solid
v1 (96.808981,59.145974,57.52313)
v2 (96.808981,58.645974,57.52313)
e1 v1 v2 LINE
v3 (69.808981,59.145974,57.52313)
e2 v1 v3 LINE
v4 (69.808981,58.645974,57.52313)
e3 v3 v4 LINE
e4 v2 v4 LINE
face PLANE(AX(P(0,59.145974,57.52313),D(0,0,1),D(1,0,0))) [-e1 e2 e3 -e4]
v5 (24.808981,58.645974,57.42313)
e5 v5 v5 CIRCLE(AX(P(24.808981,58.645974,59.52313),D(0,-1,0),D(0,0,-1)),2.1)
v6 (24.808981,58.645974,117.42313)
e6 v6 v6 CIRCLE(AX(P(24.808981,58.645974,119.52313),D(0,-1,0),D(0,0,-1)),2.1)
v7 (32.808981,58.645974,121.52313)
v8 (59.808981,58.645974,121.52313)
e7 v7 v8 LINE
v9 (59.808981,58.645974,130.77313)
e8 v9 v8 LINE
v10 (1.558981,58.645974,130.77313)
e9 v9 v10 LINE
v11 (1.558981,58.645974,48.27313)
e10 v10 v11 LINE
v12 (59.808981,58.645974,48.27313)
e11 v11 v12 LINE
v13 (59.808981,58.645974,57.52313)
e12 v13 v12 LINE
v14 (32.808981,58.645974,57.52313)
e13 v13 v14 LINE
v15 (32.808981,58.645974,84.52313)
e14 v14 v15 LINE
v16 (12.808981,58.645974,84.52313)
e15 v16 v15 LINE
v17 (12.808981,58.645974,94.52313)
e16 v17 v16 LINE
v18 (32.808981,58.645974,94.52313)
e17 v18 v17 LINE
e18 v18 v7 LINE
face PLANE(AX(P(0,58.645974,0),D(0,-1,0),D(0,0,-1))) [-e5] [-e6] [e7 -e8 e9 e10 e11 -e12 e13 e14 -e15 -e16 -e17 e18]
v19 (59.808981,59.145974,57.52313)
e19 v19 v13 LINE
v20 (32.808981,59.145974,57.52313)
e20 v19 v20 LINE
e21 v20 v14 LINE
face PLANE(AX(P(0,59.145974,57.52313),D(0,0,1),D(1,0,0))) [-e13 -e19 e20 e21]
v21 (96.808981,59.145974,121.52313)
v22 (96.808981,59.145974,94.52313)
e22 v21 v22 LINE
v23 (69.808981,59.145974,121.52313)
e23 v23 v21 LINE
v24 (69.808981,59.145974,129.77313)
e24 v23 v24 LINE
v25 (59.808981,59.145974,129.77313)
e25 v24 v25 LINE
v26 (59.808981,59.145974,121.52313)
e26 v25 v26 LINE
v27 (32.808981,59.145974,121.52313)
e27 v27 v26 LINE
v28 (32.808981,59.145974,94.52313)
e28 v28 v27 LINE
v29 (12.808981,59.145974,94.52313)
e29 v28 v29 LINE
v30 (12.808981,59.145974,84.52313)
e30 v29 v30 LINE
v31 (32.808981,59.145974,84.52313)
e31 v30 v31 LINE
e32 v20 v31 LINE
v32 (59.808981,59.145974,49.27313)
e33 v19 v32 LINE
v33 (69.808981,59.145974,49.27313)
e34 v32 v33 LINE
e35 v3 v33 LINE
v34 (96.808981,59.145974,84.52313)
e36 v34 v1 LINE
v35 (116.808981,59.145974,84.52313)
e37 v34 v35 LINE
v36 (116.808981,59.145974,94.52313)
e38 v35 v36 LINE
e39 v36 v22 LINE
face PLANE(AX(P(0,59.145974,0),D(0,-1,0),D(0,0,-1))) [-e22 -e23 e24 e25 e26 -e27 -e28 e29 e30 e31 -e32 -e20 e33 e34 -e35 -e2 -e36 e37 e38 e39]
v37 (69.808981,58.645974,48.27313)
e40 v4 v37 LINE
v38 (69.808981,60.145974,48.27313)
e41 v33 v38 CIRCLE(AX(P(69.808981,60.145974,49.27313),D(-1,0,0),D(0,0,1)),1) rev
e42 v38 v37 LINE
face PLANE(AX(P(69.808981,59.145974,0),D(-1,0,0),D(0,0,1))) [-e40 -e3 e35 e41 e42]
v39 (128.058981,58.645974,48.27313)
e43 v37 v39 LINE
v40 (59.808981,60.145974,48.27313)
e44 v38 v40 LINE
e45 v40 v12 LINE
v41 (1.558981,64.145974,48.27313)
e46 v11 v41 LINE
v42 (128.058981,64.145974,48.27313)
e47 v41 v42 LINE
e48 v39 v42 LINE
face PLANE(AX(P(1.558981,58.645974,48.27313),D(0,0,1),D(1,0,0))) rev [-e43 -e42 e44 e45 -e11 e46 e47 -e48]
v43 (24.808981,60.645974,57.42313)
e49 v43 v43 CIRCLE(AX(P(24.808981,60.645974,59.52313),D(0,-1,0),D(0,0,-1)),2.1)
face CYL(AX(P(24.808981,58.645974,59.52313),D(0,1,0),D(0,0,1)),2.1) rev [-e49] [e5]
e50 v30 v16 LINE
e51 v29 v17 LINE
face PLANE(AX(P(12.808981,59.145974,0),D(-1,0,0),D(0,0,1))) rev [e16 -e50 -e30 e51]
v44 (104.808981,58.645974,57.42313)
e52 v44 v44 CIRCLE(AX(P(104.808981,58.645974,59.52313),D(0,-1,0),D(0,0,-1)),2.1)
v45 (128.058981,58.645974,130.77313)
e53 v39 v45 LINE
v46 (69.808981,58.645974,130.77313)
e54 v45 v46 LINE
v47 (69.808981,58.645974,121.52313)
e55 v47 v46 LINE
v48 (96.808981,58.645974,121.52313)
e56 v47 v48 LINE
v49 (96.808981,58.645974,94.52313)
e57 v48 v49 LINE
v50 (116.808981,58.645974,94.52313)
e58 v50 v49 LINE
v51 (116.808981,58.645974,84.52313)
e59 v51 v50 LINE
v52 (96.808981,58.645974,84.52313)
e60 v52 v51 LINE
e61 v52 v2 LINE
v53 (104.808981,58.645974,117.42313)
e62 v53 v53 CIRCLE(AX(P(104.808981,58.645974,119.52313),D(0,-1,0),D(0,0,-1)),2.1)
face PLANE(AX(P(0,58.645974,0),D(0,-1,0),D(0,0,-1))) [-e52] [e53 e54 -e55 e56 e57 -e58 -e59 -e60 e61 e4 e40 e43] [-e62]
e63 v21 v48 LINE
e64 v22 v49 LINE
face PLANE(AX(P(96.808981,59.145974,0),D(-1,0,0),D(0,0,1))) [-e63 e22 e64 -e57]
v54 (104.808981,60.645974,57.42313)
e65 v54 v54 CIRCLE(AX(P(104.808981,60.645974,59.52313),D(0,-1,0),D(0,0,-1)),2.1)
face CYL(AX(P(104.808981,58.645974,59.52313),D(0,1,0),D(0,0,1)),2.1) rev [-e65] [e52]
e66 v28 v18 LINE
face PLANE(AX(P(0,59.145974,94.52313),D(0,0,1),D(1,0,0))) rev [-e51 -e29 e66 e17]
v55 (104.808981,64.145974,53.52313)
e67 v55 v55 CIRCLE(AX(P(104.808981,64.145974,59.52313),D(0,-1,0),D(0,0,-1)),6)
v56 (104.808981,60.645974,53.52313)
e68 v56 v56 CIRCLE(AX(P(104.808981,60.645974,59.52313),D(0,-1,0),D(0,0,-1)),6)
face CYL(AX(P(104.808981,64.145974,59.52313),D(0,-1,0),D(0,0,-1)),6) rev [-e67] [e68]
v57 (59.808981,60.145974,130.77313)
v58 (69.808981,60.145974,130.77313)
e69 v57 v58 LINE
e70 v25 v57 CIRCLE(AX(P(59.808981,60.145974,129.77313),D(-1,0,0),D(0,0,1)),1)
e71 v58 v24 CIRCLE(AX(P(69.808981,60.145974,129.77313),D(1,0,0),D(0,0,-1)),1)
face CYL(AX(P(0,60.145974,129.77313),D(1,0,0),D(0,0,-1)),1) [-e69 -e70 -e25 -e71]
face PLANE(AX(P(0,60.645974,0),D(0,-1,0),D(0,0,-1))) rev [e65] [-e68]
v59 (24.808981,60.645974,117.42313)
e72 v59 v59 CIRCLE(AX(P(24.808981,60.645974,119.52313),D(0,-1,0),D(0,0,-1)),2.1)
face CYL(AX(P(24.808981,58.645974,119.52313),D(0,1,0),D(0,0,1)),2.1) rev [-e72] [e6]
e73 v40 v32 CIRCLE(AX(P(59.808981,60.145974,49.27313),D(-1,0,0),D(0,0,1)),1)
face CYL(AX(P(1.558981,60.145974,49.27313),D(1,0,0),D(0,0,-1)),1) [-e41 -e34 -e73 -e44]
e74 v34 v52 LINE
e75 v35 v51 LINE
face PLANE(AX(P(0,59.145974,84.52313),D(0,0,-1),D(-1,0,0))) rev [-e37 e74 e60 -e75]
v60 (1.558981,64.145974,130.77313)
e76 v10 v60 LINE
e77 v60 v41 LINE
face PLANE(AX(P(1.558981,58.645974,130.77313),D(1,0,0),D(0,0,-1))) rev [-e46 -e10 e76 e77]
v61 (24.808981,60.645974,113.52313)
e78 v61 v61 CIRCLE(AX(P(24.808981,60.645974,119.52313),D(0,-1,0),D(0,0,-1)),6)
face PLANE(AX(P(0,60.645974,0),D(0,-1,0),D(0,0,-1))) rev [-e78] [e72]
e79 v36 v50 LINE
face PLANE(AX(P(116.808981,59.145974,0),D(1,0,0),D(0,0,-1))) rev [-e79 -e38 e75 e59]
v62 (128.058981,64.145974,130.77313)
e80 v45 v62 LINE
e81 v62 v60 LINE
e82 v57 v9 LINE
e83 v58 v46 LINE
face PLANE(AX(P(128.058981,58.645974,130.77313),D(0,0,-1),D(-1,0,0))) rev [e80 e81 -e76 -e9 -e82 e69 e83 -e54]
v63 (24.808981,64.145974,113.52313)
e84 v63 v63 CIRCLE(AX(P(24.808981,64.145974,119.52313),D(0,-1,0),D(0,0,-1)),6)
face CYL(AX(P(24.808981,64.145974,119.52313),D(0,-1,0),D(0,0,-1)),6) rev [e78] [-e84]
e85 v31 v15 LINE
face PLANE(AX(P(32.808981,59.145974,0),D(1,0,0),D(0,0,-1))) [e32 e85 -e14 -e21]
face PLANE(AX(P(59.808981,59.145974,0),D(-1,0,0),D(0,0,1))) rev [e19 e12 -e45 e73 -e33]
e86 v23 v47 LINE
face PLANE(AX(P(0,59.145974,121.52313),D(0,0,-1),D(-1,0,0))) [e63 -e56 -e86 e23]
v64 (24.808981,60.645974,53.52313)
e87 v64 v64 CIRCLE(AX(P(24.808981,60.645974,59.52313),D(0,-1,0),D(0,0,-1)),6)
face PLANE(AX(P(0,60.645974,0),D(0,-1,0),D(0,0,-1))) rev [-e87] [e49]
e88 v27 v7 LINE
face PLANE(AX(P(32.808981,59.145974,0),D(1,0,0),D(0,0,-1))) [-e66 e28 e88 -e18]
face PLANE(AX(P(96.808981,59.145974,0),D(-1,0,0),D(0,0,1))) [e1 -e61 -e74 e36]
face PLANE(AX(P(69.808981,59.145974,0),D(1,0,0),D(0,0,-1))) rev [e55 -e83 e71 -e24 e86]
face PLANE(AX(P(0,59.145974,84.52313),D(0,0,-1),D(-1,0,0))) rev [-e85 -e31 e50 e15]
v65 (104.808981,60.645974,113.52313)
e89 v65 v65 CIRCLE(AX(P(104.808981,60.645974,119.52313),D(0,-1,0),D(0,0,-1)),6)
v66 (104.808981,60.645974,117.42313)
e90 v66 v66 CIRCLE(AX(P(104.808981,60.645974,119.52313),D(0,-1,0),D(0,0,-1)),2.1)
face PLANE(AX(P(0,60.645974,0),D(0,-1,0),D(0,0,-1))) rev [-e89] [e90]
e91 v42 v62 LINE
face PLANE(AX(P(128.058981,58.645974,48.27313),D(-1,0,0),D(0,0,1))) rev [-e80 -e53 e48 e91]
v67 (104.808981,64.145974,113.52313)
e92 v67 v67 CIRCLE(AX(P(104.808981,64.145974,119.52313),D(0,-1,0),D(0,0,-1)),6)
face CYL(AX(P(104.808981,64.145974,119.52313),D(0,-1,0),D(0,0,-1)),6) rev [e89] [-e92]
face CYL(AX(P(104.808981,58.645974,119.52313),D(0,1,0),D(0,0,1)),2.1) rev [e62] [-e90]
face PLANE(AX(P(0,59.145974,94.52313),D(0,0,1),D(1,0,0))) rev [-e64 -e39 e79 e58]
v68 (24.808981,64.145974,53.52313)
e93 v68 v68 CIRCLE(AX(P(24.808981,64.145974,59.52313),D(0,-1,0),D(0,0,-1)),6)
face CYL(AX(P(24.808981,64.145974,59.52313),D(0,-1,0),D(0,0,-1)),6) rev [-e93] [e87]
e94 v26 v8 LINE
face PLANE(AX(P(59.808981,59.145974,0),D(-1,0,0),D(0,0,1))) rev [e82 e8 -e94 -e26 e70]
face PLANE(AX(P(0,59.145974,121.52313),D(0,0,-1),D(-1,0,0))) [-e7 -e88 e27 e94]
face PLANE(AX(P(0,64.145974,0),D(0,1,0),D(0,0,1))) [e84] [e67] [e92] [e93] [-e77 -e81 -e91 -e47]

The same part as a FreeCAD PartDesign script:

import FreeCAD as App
import Part
import Sketcher

V = App.Vector
Q = App.Units.Quantity


def edges_at(feature, points):
    """Names of the edges that pass closest to the given points."""
    edges = feature.Shape.Edges
    near = lambda p: min(range(len(edges)), key=lambda i: edges[i].distToShape(Part.Vertex(*p))[0])
    return sorted({f"Edge{near(p) + 1}" for p in points})


def add_polygon(sketch, points):
    """Adds a closed chain of lines whose ends are joined by coincident constraints."""
    first, n = sketch.GeometryCount, len(points)
    for a, b in zip(points, points[1:] + points[:1]):
        sketch.addGeometry(Part.LineSegment(App.Vector(*a, 0), App.Vector(*b, 0)), False)
    for i in range(n):
        sketch.addConstraint(Sketcher.Constraint("Coincident", first + i, 2, first + (i + 1) % n, 1))

doc = App.newDocument("Part")
params = doc.addObject("Spreadsheet::Sheet", "Params")
for row, (alias, value) in enumerate([
    ("sketch1_diameter", "4.2 mm"),
    ("sketch1_width", "126.5 mm"),
    ("sketch1_height", "82.5 mm"),
    ("pad1_length", "2 mm"),
    ("sketch2_width", "27 mm"),
    ("sketch2_width2", "10 mm"),
    ("sketch2_width3", "20 mm"),
    ("sketch2_height", "9.25 mm"),
    ("pocket1_length", "0.5 mm"),
    ("fillet_radius", "1 mm"),
    ("sketch3_diameter", "12 mm"),
    ("sketch3_width", "126.5 mm"),
    ("sketch3_height", "82.5 mm"),
    ("pad2_length", "3.5 mm"),
], start=1):
    params.set(f"A{row}", alias)
    params.set(f"B{row}", "=" + value)
    params.setAlias(f"B{row}", alias)

body = doc.addObject("PartDesign::Body", "Body")

sketch1 = body.newObject("Sketcher::SketchObject", "Sketch")
sketch1.AttachmentSupport = (doc.getObject("XZ_Plane"), [""])
sketch1.MapMode = "FlatFace"
sketch1.AttachmentOffset = App.Placement(V(0, 0, -60.645974), App.Rotation())
add_polygon(sketch1, [(128.058981, 48.27313), (128.058981, 130.77313), (1.558981, 130.77313), (1.558981, 48.27313)])
sketch1.addGeometry(Part.Circle(V(104.808981, 119.52313, 0), V(0, 0, 1), 2.1), False)
sketch1.addGeometry(Part.Circle(V(24.808981, 119.52313, 0), V(0, 0, 1), 2.1), False)
sketch1.addGeometry(Part.Circle(V(104.808981, 59.52313, 0), V(0, 0, 1), 2.1), False)
sketch1.addGeometry(Part.Circle(V(24.808981, 59.52313, 0), V(0, 0, 1), 2.1), False)
sketch1.addConstraint([
    Sketcher.Constraint("Vertical", 0),
    Sketcher.Constraint("Horizontal", 1),
    Sketcher.Constraint("Vertical", 2),
    Sketcher.Constraint("Horizontal", 3),
    Sketcher.Constraint("Equal", 4, 5),
    Sketcher.Constraint("Equal", 5, 6),
    Sketcher.Constraint("Equal", 6, 7),
    Sketcher.Constraint("Horizontal", 4, 3, 5, 3),
    Sketcher.Constraint("Horizontal", 6, 3, 7, 3),
    Sketcher.Constraint("Vertical", 4, 3, 6, 3),
    Sketcher.Constraint("Vertical", 5, 3, 7, 3),
    Sketcher.Constraint("Diameter", 4, Q("4.2 mm")),
    Sketcher.Constraint("DistanceX", 1, 2, 1, 1, Q("126.5 mm")),
    Sketcher.Constraint("DistanceY", 0, 1, 0, 2, Q("82.5 mm")),
    Sketcher.Constraint("DistanceX", 5, 3, 4, 3, Q("80 mm")),
    Sketcher.Constraint("DistanceY", 6, 3, 4, 3, Q("60 mm")),
    Sketcher.Constraint("DistanceX", 4, 3, 0, 2, Q("23.25 mm")),
    Sketcher.Constraint("DistanceY", 4, 3, 0, 2, Q("11.25 mm")),
    Sketcher.Constraint("DistanceX", -1, 1, 4, 3, Q("104.808981 mm")),
    Sketcher.Constraint("DistanceY", -1, 1, 4, 3, Q("119.52313 mm")),
])
sketch1.setExpression("Constraints[15]", "Params.sketch1_diameter")
sketch1.setExpression("Constraints[16]", "Params.sketch1_width")
sketch1.setExpression("Constraints[17]", "Params.sketch1_height")
pad1 = body.newObject("PartDesign::Pad", "Pad")
pad1.Profile = sketch1
pad1.setExpression("Length", "Params.pad1_length")

sketch2 = body.newObject("Sketcher::SketchObject", "Sketch001")
sketch2.AttachmentSupport = (doc.getObject("XZ_Plane"), [""])
sketch2.MapMode = "FlatFace"
sketch2.AttachmentOffset = App.Placement(V(0, 0, -58.645974), App.Rotation())
add_polygon(sketch2, [(32.808981, 57.52313), (59.808981, 57.52313), (59.808981, 48.27313), (69.808981, 48.27313), (69.808981, 57.52313), (96.808981, 57.52313), (96.808981, 84.52313), (116.808981, 84.52313), (116.808981, 94.52313), (96.808981, 94.52313), (96.808981, 121.52313), (69.808981, 121.52313), (69.808981, 130.77313), (59.808981, 130.77313), (59.808981, 121.52313), (32.808981, 121.52313), (32.808981, 94.52313), (12.808981, 94.52313), (12.808981, 84.52313), (32.808981, 84.52313)])
sketch2.addConstraint([
    Sketcher.Constraint("Horizontal", 0),
    Sketcher.Constraint("Vertical", 1),
    Sketcher.Constraint("Horizontal", 2),
    Sketcher.Constraint("Vertical", 3),
    Sketcher.Constraint("Horizontal", 4),
    Sketcher.Constraint("Vertical", 5),
    Sketcher.Constraint("Horizontal", 6),
    Sketcher.Constraint("Vertical", 7),
    Sketcher.Constraint("Horizontal", 8),
    Sketcher.Constraint("Vertical", 9),
    Sketcher.Constraint("Horizontal", 10),
    Sketcher.Constraint("Vertical", 11),
    Sketcher.Constraint("Horizontal", 12),
    Sketcher.Constraint("Vertical", 13),
    Sketcher.Constraint("Horizontal", 14),
    Sketcher.Constraint("Vertical", 15),
    Sketcher.Constraint("Horizontal", 16),
    Sketcher.Constraint("Vertical", 17),
    Sketcher.Constraint("Horizontal", 18),
    Sketcher.Constraint("Vertical", 19),
    Sketcher.Constraint("Horizontal", 0, 2, 3, 2),
    Sketcher.Constraint("Horizontal", 10, 2, 13, 2),
    Sketcher.Constraint("Horizontal", 8, 2, 15, 2),
    Sketcher.Constraint("Horizontal", 6, 2, 17, 2),
    Sketcher.Constraint("Vertical", 5, 2, 8, 2),
    Sketcher.Constraint("Vertical", 3, 2, 10, 2),
    Sketcher.Constraint("Vertical", 1, 2, 12, 2),
    Sketcher.Constraint("Vertical", 15, 2, 18, 2),
    Sketcher.Constraint("Equal", 0, 4),
    Sketcher.Constraint("Equal", 8, 16),
    Sketcher.Constraint("Equal", 14, 5),
    Sketcher.Constraint("Equal", 12, 7),
    Sketcher.Constraint("Equal", 5, 9),
    Sketcher.Constraint("Equal", 3, 11),
    Sketcher.Constraint("DistanceX", 0, 1, 0, 2, Q("27 mm")),
    Sketcher.Constraint("DistanceX", 2, 1, 2, 2, Q("10 mm")),
    Sketcher.Constraint("DistanceX", 6, 1, 6, 2, Q("20 mm")),
    Sketcher.Constraint("DistanceY", 1, 2, 1, 1, Q("9.25 mm")),
    Sketcher.Constraint("DistanceX", -1, 1, 0, 2, Q("59.808981 mm")),
    Sketcher.Constraint("DistanceY", -1, 1, 0, 2, Q("57.52313 mm")),
])
sketch2.setExpression("Constraints[54]", "Params.sketch2_width")
sketch2.setExpression("Constraints[55]", "Params.sketch2_width2")
sketch2.setExpression("Constraints[56]", "Params.sketch2_width3")
sketch2.setExpression("Constraints[57]", "Params.sketch2_height")
pocket1 = body.newObject("PartDesign::Pocket", "Pocket")
pocket1.Profile = sketch2
pocket1.setExpression("Length", "Params.pocket1_length")
doc.recompute()

fillet = body.newObject("PartDesign::Fillet", "Fillet")
fillet.Base = (pocket1, edges_at(pocket1, [(64.809, 59.146, 130.773), (64.809, 59.146, 48.273)]))
fillet.setExpression("Radius", "Params.fillet_radius")

sketch3 = body.newObject("Sketcher::SketchObject", "Sketch002")
sketch3.AttachmentSupport = (doc.getObject("XZ_Plane"), [""])
sketch3.MapMode = "FlatFace"
sketch3.AttachmentOffset = App.Placement(V(0, 0, -60.645974), App.Rotation())
add_polygon(sketch3, [(128.058981, 48.27313), (128.058981, 130.77313), (1.558981, 130.77313), (1.558981, 48.27313)])
sketch3.addGeometry(Part.Circle(V(104.808981, 119.52313, 0), V(0, 0, 1), 6), False)
sketch3.addGeometry(Part.Circle(V(24.808981, 119.52313, 0), V(0, 0, 1), 6), False)
sketch3.addGeometry(Part.Circle(V(104.808981, 59.52313, 0), V(0, 0, 1), 6), False)
sketch3.addGeometry(Part.Circle(V(24.808981, 59.52313, 0), V(0, 0, 1), 6), False)
sketch3.addConstraint([
    Sketcher.Constraint("Vertical", 0),
    Sketcher.Constraint("Horizontal", 1),
    Sketcher.Constraint("Vertical", 2),
    Sketcher.Constraint("Horizontal", 3),
    Sketcher.Constraint("Equal", 4, 5),
    Sketcher.Constraint("Equal", 5, 6),
    Sketcher.Constraint("Equal", 6, 7),
    Sketcher.Constraint("Horizontal", 4, 3, 5, 3),
    Sketcher.Constraint("Horizontal", 6, 3, 7, 3),
    Sketcher.Constraint("Vertical", 4, 3, 6, 3),
    Sketcher.Constraint("Vertical", 5, 3, 7, 3),
    Sketcher.Constraint("Diameter", 4, Q("12 mm")),
    Sketcher.Constraint("DistanceX", 1, 2, 1, 1, Q("126.5 mm")),
    Sketcher.Constraint("DistanceY", 0, 1, 0, 2, Q("82.5 mm")),
    Sketcher.Constraint("DistanceX", 5, 3, 4, 3, Q("80 mm")),
    Sketcher.Constraint("DistanceY", 6, 3, 4, 3, Q("60 mm")),
    Sketcher.Constraint("DistanceX", 4, 3, 0, 2, Q("23.25 mm")),
    Sketcher.Constraint("DistanceY", 4, 3, 0, 2, Q("11.25 mm")),
    Sketcher.Constraint("DistanceX", -1, 1, 4, 3, Q("104.808981 mm")),
    Sketcher.Constraint("DistanceY", -1, 1, 4, 3, Q("119.52313 mm")),
])
sketch3.setExpression("Constraints[15]", "Params.sketch3_diameter")
sketch3.setExpression("Constraints[16]", "Params.sketch3_width")
sketch3.setExpression("Constraints[17]", "Params.sketch3_height")
pad2 = body.newObject("PartDesign::Pad", "Pad001")
pad2.Profile = sketch3
pad2.setExpression("Length", "Params.pad2_length")
pad2.Reversed = True

doc.recompute()
